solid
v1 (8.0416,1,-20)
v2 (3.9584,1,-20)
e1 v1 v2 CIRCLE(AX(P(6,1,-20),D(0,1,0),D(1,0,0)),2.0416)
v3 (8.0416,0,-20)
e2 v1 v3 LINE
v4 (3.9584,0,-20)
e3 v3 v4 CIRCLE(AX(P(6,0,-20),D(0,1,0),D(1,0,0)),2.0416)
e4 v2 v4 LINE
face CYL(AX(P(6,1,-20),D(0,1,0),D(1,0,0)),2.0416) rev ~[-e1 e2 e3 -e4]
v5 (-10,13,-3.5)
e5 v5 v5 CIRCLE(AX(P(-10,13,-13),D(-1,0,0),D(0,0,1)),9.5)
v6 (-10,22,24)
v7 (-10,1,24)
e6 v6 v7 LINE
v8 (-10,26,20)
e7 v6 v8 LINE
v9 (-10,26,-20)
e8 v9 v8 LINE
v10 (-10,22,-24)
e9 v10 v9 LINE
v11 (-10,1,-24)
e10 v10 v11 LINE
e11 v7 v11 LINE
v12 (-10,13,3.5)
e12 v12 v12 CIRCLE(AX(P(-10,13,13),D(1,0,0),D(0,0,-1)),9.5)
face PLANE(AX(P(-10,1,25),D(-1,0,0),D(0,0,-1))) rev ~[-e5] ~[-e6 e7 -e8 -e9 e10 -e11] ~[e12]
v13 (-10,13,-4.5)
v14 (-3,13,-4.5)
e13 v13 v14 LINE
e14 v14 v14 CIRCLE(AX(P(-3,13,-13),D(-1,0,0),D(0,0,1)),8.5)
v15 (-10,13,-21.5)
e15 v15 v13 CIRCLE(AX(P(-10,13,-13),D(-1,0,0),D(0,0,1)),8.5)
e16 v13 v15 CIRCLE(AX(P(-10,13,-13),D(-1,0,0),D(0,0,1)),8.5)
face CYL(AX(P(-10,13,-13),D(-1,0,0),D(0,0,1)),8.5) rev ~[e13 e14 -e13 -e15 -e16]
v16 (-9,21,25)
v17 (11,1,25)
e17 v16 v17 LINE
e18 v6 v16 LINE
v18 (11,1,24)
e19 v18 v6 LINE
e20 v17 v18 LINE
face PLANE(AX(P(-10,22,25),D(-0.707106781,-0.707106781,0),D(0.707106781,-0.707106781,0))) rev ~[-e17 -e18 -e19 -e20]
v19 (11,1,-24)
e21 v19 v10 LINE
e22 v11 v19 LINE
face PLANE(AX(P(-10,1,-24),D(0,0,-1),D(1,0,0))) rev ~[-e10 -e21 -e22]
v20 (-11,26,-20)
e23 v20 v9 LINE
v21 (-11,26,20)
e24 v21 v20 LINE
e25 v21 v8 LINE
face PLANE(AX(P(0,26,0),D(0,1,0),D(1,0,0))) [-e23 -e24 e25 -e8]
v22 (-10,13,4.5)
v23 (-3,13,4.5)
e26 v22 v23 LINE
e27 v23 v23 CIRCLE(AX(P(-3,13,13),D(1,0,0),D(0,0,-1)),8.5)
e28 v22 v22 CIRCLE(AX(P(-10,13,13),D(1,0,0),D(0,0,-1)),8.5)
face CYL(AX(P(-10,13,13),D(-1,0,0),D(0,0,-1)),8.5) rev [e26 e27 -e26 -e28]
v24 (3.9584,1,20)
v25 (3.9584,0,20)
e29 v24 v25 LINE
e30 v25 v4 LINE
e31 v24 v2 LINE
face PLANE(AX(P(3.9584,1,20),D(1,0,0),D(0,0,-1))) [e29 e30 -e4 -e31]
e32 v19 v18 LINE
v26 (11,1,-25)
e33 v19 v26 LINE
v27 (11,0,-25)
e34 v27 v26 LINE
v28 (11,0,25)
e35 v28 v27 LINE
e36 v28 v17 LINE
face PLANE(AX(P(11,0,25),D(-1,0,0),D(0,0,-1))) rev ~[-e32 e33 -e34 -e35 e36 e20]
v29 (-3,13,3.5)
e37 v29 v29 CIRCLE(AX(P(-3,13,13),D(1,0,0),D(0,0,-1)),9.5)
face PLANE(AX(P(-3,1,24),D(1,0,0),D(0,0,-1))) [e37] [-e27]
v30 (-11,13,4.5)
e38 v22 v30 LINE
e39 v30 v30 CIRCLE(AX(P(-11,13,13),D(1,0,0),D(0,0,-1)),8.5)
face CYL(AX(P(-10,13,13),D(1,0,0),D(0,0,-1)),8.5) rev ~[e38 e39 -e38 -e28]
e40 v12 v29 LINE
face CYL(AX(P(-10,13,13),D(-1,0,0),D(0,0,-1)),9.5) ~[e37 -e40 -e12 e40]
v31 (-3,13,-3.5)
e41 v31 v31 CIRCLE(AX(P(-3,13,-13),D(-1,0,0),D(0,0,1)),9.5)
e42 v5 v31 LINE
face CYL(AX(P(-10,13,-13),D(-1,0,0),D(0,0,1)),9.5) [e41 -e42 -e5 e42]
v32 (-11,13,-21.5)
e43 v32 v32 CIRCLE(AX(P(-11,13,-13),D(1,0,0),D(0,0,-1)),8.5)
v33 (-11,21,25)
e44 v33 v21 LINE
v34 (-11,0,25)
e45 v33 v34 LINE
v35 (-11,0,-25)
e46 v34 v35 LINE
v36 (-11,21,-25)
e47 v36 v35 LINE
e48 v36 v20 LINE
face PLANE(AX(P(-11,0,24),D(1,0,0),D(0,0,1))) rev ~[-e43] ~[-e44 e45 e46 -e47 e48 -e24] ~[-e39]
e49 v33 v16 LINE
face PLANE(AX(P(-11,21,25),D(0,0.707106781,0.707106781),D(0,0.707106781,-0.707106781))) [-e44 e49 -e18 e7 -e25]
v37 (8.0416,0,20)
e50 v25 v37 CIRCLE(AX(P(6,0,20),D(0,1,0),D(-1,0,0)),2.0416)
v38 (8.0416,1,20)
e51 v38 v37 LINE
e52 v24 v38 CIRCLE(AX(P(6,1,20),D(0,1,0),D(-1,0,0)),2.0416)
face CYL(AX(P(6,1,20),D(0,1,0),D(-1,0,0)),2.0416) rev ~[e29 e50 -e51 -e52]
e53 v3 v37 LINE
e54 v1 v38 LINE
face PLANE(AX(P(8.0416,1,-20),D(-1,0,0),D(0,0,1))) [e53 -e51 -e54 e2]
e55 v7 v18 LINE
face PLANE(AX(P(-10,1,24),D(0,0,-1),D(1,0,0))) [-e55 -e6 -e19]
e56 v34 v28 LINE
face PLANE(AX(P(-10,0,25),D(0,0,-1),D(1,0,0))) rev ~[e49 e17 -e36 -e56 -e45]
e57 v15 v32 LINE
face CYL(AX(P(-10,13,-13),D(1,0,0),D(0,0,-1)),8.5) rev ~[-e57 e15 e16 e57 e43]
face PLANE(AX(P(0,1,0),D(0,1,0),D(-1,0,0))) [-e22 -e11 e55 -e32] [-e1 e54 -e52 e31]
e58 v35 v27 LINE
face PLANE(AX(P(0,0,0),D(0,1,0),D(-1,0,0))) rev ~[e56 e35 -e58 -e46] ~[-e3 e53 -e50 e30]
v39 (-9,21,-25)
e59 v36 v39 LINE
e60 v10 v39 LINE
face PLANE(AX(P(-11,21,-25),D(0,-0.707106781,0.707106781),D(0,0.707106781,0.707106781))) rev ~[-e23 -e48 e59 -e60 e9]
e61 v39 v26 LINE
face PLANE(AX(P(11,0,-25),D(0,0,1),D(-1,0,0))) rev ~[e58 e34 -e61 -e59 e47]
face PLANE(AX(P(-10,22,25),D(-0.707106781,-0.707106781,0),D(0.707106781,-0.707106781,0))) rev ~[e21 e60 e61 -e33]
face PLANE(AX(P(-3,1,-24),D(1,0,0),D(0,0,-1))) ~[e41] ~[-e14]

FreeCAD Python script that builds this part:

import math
import FreeCAD as App
import Part
import Sketcher
Q = App.Units.Quantity


def add_polygon(sketch, points):
    """Adds a closed chain of lines whose ends are joined by coincident constraints."""
    first, n = sketch.GeometryCount, len(points)
    for a, b in zip(points, points[1:] + points[:1]):
        sketch.addGeometry(Part.LineSegment(App.Vector(*a, 0), App.Vector(*b, 0)), False)
    for i in range(n):
        sketch.addConstraint(Sketcher.Constraint("Coincident", first + i, 2, first + (i + 1) % n, 1))

doc = App.newDocument("Part")
params = doc.addObject("Spreadsheet::Sheet", "Params")
for row, (alias, value) in enumerate([
    ("sketch1_width", "22 mm"),
    ("sketch1_height", "50 mm"),
    ("pad1_length", "1 mm"),
    ("sketch2_width", "1 mm"),
    ("sketch2_height", "50 mm"),
    ("pad2_length", "25 mm"),
    ("sketch3_height", "1 mm"),
    ("sketch3_width", "22 mm"),
    ("pad3_length", "25 mm"),
    ("sketch4_width", "5 mm"),
    ("pocket1_length", "25 mm"),
    ("sketch5_width", "21 mm"),
    ("sketch6_diameter", "19 mm"),
    ("sketch6_diameter2", "17 mm"),
    ("pad4_length", "7 mm"),
    ("sketch7_diameter", "17 mm"),
    ("pocket3_length", "7 mm"),
    ("sketch8_diameter", "17 mm"),
    ("pocket4_length", "7 mm"),
    ("sketch9_height", "40 mm"),
    ("pocket5_length", "7 mm"),
], start=1):
    params.set(f"A{row}", alias)
    params.set(f"B{row}", "=" + value)
    params.setAlias(f"B{row}", alias)

body = doc.addObject("PartDesign::Body", "Body")

sketch1 = doc.addObject("Sketcher::SketchObject", "Sketch")
body.addObject(sketch1)
sketch1.AttachmentSupport = (doc.XZ_Plane, [""])
sketch1.MapMode = "FlatFace"
add_polygon(sketch1, [(11, 25), (11, -25), (-11, -25), (-11, 25)])
sketch1.addConstraint([
    Sketcher.Constraint("Vertical", 0),
    Sketcher.Constraint("Horizontal", 1),
    Sketcher.Constraint("Vertical", 2),
    Sketcher.Constraint("Horizontal", 3),
    Sketcher.Constraint("Symmetric", 0, 2, 2, 2, -1, 1),
    Sketcher.Constraint("DistanceX", 1, 2, 1, 1, Q("22 mm")),
    Sketcher.Constraint("DistanceY", 0, 2, 0, 1, Q("50 mm")),
])
sketch1.setExpression("Constraints[9]", "Params.sketch1_width")
sketch1.setExpression("Constraints[10]", "Params.sketch1_height")
pad1 = doc.addObject("PartDesign::Pad", "Pad")
body.addObject(pad1)
pad1.Profile = sketch1
pad1.setExpression("Length", "Params.pad1_length")
pad1.Reversed = True

sketch2 = doc.addObject("Sketcher::SketchObject", "Sketch001")
body.addObject(sketch2)
sketch2.AttachmentSupport = (doc.XZ_Plane, [""])
sketch2.MapMode = "FlatFace"
sketch2.AttachmentOffset = App.Placement(App.Vector(0, 0, -1), App.Rotation())
add_polygon(sketch2, [(-11, 25), (-10, 25), (-10, -25), (-11, -25)])
sketch2.addConstraint([
    Sketcher.Constraint("Horizontal", 0),
    Sketcher.Constraint("Vertical", 1),
    Sketcher.Constraint("Horizontal", 2),
    Sketcher.Constraint("Vertical", 3),
    Sketcher.Constraint("DistanceX", 0, 1, 0, 2, Q("1 mm")),
    Sketcher.Constraint("DistanceY", 1, 2, 1, 1, Q("50 mm")),
    Sketcher.Constraint("DistanceX", 0, 2, -1, 1, Q("10 mm")),
    Sketcher.Constraint("DistanceY", -1, 1, 0, 2, Q("25 mm")),
])
sketch2.setExpression("Constraints[8]", "Params.sketch2_width")
sketch2.setExpression("Constraints[9]", "Params.sketch2_height")
pad2 = doc.addObject("PartDesign::Pad", "Pad001")
body.addObject(pad2)
pad2.Profile = sketch2
pad2.setExpression("Length", "Params.pad2_length")
pad2.Reversed = True

sketch3 = doc.addObject("Sketcher::SketchObject", "Sketch002")
body.addObject(sketch3)
sketch3.AttachmentSupport = (doc.XZ_Plane, [""])
sketch3.MapMode = "FlatFace"
sketch3.AttachmentOffset = App.Placement(App.Vector(0, 0, -1), App.Rotation())
add_polygon(sketch3, [(11, 25), (11, 24), (-11, 24), (-11, 25)])
add_polygon(sketch3, [(11, -24), (11, -25), (-11, -25), (-11, -24)])
sketch3.addConstraint([
    Sketcher.Constraint("Vertical", 0),
    Sketcher.Constraint("Horizontal", 1),
    Sketcher.Constraint("Vertical", 2),
    Sketcher.Constraint("Horizontal", 3),
    Sketcher.Constraint("Vertical", 4),
    Sketcher.Constraint("Horizontal", 5),
    Sketcher.Constraint("Vertical", 6),
    Sketcher.Constraint("Horizontal", 7),
    Sketcher.Constraint("Symmetric", 2, 2, 4, 2, -1, 1),
    Sketcher.Constraint("Symmetric", 0, 2, 6, 2, -1, 1),
    Sketcher.Constraint("Vertical", 3, 2, 4, 2),
    Sketcher.Constraint("DistanceY", 0, 2, 0, 1, Q("1 mm")),
    Sketcher.Constraint("DistanceX", 1, 2, 1, 1, Q("22 mm")),
    Sketcher.Constraint("DistanceY", -1, 1, 0, 2, Q("24 mm")),
])
sketch3.setExpression("Constraints[19]", "Params.sketch3_height")
sketch3.setExpression("Constraints[20]", "Params.sketch3_width")
pad3 = doc.addObject("PartDesign::Pad", "Pad002")
body.addObject(pad3)
pad3.Profile = sketch3
pad3.setExpression("Length", "Params.pad3_length")
pad3.Reversed = True

sketch4 = doc.addObject("Sketcher::SketchObject", "Sketch003")
body.addObject(sketch4)
sketch4.AttachmentSupport = (doc.YZ_Plane, [""])
sketch4.MapMode = "FlatFace"
sketch4.AttachmentOffset = App.Placement(App.Vector(0, 0, -11), App.Rotation())
add_polygon(sketch4, [(26, 25), (26, 20), (21, 25)])
add_polygon(sketch4, [(21, -25), (26, -20), (26, -25)])
sketch4.addConstraint([
    Sketcher.Constraint("Vertical", 0),
    Sketcher.Constraint("Horizontal", 2),
    Sketcher.Constraint("Vertical", 4),
    Sketcher.Constraint("Horizontal", 5),
    Sketcher.Constraint("Symmetric", 0, 2, 3, 2, -1),
    Sketcher.Constraint("Symmetric", 1, 2, 5, 2, -1),
    Sketcher.Constraint("Perpendicular", 1, 3),
    Sketcher.Constraint("DistanceX", 2, 1, 2, 2, Q("5 mm")),
    Sketcher.Constraint("DistanceY", -1, 1, 0, 2, Q("20 mm")),
    Sketcher.Constraint("DistanceX", -1, 1, 0, 2, Q("26 mm")),
])
sketch4.setExpression("Constraints[13]", "Params.sketch4_width")
pocket1 = doc.addObject("PartDesign::Pocket", "Pocket")
body.addObject(pocket1)
pocket1.Profile = sketch4
pocket1.setExpression("Length", "Params.pocket1_length")
pocket1.Reversed = True

sketch5 = doc.addObject("Sketcher::SketchObject", "Sketch004")
body.addObject(sketch5)
sketch5.AttachmentSupport = (doc.XY_Plane, [""])
sketch5.MapMode = "FlatFace"
sketch5.AttachmentOffset = App.Placement(App.Vector(0, 0, 25), App.Rotation())
add_polygon(sketch5, [(11, 22), (-10, 22), (11, 1)])
sketch5.addConstraint([
    Sketcher.Constraint("Horizontal", 0),
    Sketcher.Constraint("Vertical", 2),
    Sketcher.Constraint("Equal", 0, 2),
    Sketcher.Constraint("DistanceX", 0, 2, 0, 1, Q("21 mm")),
    Sketcher.Constraint("DistanceX", 0, 2, -1, 1, Q("10 mm")),
    Sketcher.Constraint("DistanceY", -1, 1, 0, 2, Q("22 mm")),
])
sketch5.setExpression("Constraints[6]", "Params.sketch5_width")
pocket2 = doc.addObject("PartDesign::Pocket", "Pocket001")
body.addObject(pocket2)
pocket2.Profile = sketch5
pocket2.Type = "ThroughAll"

sketch6 = doc.addObject("Sketcher::SketchObject", "Sketch005")
body.addObject(sketch6)
sketch6.AttachmentSupport = (doc.YZ_Plane, [""])
sketch6.MapMode = "FlatFace"
sketch6.AttachmentOffset = App.Placement(App.Vector(0, 0, -10), App.Rotation())
sketch6.addGeometry([
    Part.Circle(App.Vector(13, 13, 0), App.Vector(0, 0, 1), 10),
    Part.Circle(App.Vector(13, 13, 0), App.Vector(0, 0, 1), 8),
], False)
sketch6.addConstraint([
    Sketcher.Constraint("Coincident", 1, 3, 0, 3),
    Sketcher.Constraint("Diameter", 0, Q("19 mm")),
    Sketcher.Constraint("Diameter", 1, Q("17 mm")),
    Sketcher.Constraint("DistanceX", -1, 1, 0, 3, Q("13 mm")),
    Sketcher.Constraint("DistanceY", -1, 1, 0, 3, Q("13 mm")),
])
sketch6.setExpression("Constraints[1]", "Params.sketch6_diameter")
sketch6.setExpression("Constraints[2]", "Params.sketch6_diameter2")
pad4 = doc.addObject("PartDesign::Pad", "Pad003")
body.addObject(pad4)
pad4.Profile = sketch6
pad4.setExpression("Length", "Params.pad4_length")

sketch7 = doc.addObject("Sketcher::SketchObject", "Sketch006")
body.addObject(sketch7)
sketch7.AttachmentSupport = (doc.YZ_Plane, [""])
sketch7.MapMode = "FlatFace"
sketch7.AttachmentOffset = App.Placement(App.Vector(0, 0, -10), App.Rotation())
sketch7.addGeometry(Part.Circle(App.Vector(13, 13, 0), App.Vector(0, 0, 1), 8), False)
sketch7.addConstraint([
    Sketcher.Constraint("Diameter", 0, Q("17 mm")),
    Sketcher.Constraint("DistanceX", -1, 1, 0, 3, Q("13 mm")),
    Sketcher.Constraint("DistanceY", -1, 1, 0, 3, Q("13 mm")),
])
sketch7.setExpression("Constraints[0]", "Params.sketch7_diameter")
pocket3 = doc.addObject("PartDesign::Pocket", "Pocket002")
body.addObject(pocket3)
pocket3.Profile = sketch7
pocket3.setExpression("Length", "Params.pocket3_length")
doc.recompute()

mirrored = doc.addObject("PartDesign::Mirrored", "Mirrored")
body.addObject(mirrored)
mirrored.Originals = [pad4]
mirrored.MirrorPlane = (doc.XY_Plane, [""])
body.Tip = mirrored
doc.recompute()

mirrored2 = doc.addObject("PartDesign::Mirrored", "Mirrored001")
body.addObject(mirrored2)
mirrored2.Originals = [pad4]
mirrored2.MirrorPlane = (doc.XY_Plane, [""])
body.Tip = mirrored2

sketch8 = doc.addObject("Sketcher::SketchObject", "Sketch007")
body.addObject(sketch8)
sketch8.AttachmentSupport = (doc.YZ_Plane, [""])
sketch8.MapMode = "FlatFace"
sketch8.AttachmentOffset = App.Placement(App.Vector(0, 0, -10), App.Rotation())
sketch8.addGeometry(Part.Circle(App.Vector(13, -13, 0), App.Vector(0, 0, 1), 8), False)
sketch8.addConstraint([
    Sketcher.Constraint("Diameter", 0, Q("17 mm")),
    Sketcher.Constraint("DistanceX", -1, 1, 0, 3, Q("13 mm")),
    Sketcher.Constraint("DistanceY", 0, 3, -1, 1, Q("13 mm")),
])
sketch8.setExpression("Constraints[0]", "Params.sketch8_diameter")
pocket4 = doc.addObject("PartDesign::Pocket", "Pocket003")
body.addObject(pocket4)
pocket4.Profile = sketch8
pocket4.setExpression("Length", "Params.pocket4_length")

sketch9 = doc.addObject("Sketcher::SketchObject", "Sketch008")
body.addObject(sketch9)
sketch9.AttachmentSupport = (doc.XZ_Plane, [""])
sketch9.MapMode = "FlatFace"
sketch9.AttachmentOffset = App.Placement(App.Vector(0, 0, -1), App.Rotation())
sketch9.addGeometry([
    Part.LineSegment(App.Vector(8, 20, 0), App.Vector(8, -20, 0)),
    Part.ArcOfCircle(Part.Circle(App.Vector(6, -20, 0), App.Vector(0, 0, 1), 2), math.radians(180), math.radians(360)),
    Part.LineSegment(App.Vector(4, -20, 0), App.Vector(4, 20, 0)),
    Part.ArcOfCircle(Part.Circle(App.Vector(6, 20, 0), App.Vector(0, 0, 1), 2), math.radians(0), math.radians(180)),
], False)
sketch9.addConstraint([
    Sketcher.Constraint("Tangent", 0, 2, 1, 2),
    Sketcher.Constraint("Tangent", 1, 1, 2, 1),
    Sketcher.Constraint("Tangent", 2, 2, 3, 2),
    Sketcher.Constraint("Tangent", 3, 1, 0, 1),
    Sketcher.Constraint("Vertical", 0),
    Sketcher.Constraint("Vertical", 2),
    Sketcher.Constraint("DistanceY", 0, 2, 0, 1, Q("40 mm")),
    Sketcher.Constraint("DistanceX", -1, 1, 1, 3, Q("6 mm")),
    Sketcher.Constraint("DistanceY", 1, 3, -1, 1, Q("20 mm")),
    Sketcher.Constraint("Radius", 1, Q("2.0416 mm")),
])
sketch9.setExpression("Constraints[6]", "Params.sketch9_height")
pocket5 = doc.addObject("PartDesign::Pocket", "Pocket004")
body.addObject(pocket5)
pocket5.Profile = sketch9
pocket5.setExpression("Length", "Params.pocket5_length")
pocket5.Reversed = True

doc.recompute()
